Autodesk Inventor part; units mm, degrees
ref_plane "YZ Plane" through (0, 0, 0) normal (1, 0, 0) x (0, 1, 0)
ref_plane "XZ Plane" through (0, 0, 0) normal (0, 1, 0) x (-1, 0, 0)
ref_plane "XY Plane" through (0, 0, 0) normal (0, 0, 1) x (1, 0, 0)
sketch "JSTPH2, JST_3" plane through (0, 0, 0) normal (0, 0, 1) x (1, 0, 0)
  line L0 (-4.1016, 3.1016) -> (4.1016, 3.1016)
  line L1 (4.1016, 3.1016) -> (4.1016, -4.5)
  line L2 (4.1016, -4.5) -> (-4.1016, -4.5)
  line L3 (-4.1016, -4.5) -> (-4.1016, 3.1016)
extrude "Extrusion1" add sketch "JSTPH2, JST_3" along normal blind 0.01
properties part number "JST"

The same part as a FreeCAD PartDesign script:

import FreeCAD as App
import Part
import Sketcher

V = App.Vector


def add_polygon(sketch, points):
    """Adds a closed chain of lines whose ends are joined by coincident constraints."""
    first, n = sketch.GeometryCount, len(points)
    for a, b in zip(points, points[1:] + points[:1]):
        sketch.addGeometry(Part.LineSegment(App.Vector(*a, 0), App.Vector(*b, 0)), False)
    for i in range(n):
        sketch.addConstraint(Sketcher.Constraint("Coincident", first + i, 2, first + (i + 1) % n, 1))

doc = App.newDocument("Part")
body = doc.addObject("PartDesign::Body", "Body")

sketch1 = body.newObject("Sketcher::SketchObject", "Sketch")
sketch1.AttachmentSupport = (doc.getObject("XY_Plane"), [""])
sketch1.MapMode = "FlatFace"
add_polygon(sketch1, [(4.1016, 3.1016), (-4.1016, 3.1016), (-4.1016, -4.5), (4.1016, -4.5)])
sketch1.addConstraint([
    Sketcher.Constraint("Horizontal", 0),
    Sketcher.Constraint("Vertical", 1),
    Sketcher.Constraint("Horizontal", 2),
    Sketcher.Constraint("Vertical", 3),
    Sketcher.Constraint("DistanceY", 1, 2, -1, 1, 4.5),
    Sketcher.Constraint("DistanceX", 0, 2, 0, 1, 8.2032),
    Sketcher.Constraint("DistanceY", 1, 2, 1, 1, 7.6016),
    Sketcher.Constraint("DistanceX", 0, 2, -1, 1, 4.1016),
])
pad1 = body.newObject("PartDesign::Pad", "Pad")
pad1.Profile = sketch1
pad1.Length = 0.01

doc.recompute()
